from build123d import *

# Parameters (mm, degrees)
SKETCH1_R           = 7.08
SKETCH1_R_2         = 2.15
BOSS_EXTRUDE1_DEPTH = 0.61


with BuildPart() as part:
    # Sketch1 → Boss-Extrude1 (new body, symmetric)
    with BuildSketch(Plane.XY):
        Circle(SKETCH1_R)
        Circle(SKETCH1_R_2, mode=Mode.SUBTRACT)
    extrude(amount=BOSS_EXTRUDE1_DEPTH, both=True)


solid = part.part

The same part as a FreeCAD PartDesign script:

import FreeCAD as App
import Part
import Sketcher
Q = App.Units.Quantity

doc = App.newDocument("Part")
body = doc.addObject("PartDesign::Body", "Body")

sketch1 = doc.addObject("Sketcher::SketchObject", "Sketch")
body.addObject(sketch1)
sketch1.AttachmentSupport = (doc.XY_Plane, [""])
sketch1.MapMode = "FlatFace"
sketch1.addGeometry(Part.Circle(App.Vector(0, 0, 0), App.Vector(0, 0, 1), 7.1), False)
sketch1.addGeometry(Part.Circle(App.Vector(0, 0, 0), App.Vector(0, 0, 1), 2.1), False)
sketch1.addConstraint(Sketcher.Constraint("Coincident", 0, 3, -1, 1))
sketch1.addConstraint(Sketcher.Constraint("Coincident", 1, 3, -1, 1))
sketch1.addConstraint(Sketcher.Constraint("Diameter", 1, Q("4.3 mm")))
sketch1.addConstraint(Sketcher.Constraint("Diameter", 0, Q("14.16 mm")))
pad1 = doc.addObject("PartDesign::Pad", "Pad")
body.addObject(pad1)
pad1.Profile = sketch1
pad1.Length = 1.22
pad1.Midplane = True

doc.recompute()
